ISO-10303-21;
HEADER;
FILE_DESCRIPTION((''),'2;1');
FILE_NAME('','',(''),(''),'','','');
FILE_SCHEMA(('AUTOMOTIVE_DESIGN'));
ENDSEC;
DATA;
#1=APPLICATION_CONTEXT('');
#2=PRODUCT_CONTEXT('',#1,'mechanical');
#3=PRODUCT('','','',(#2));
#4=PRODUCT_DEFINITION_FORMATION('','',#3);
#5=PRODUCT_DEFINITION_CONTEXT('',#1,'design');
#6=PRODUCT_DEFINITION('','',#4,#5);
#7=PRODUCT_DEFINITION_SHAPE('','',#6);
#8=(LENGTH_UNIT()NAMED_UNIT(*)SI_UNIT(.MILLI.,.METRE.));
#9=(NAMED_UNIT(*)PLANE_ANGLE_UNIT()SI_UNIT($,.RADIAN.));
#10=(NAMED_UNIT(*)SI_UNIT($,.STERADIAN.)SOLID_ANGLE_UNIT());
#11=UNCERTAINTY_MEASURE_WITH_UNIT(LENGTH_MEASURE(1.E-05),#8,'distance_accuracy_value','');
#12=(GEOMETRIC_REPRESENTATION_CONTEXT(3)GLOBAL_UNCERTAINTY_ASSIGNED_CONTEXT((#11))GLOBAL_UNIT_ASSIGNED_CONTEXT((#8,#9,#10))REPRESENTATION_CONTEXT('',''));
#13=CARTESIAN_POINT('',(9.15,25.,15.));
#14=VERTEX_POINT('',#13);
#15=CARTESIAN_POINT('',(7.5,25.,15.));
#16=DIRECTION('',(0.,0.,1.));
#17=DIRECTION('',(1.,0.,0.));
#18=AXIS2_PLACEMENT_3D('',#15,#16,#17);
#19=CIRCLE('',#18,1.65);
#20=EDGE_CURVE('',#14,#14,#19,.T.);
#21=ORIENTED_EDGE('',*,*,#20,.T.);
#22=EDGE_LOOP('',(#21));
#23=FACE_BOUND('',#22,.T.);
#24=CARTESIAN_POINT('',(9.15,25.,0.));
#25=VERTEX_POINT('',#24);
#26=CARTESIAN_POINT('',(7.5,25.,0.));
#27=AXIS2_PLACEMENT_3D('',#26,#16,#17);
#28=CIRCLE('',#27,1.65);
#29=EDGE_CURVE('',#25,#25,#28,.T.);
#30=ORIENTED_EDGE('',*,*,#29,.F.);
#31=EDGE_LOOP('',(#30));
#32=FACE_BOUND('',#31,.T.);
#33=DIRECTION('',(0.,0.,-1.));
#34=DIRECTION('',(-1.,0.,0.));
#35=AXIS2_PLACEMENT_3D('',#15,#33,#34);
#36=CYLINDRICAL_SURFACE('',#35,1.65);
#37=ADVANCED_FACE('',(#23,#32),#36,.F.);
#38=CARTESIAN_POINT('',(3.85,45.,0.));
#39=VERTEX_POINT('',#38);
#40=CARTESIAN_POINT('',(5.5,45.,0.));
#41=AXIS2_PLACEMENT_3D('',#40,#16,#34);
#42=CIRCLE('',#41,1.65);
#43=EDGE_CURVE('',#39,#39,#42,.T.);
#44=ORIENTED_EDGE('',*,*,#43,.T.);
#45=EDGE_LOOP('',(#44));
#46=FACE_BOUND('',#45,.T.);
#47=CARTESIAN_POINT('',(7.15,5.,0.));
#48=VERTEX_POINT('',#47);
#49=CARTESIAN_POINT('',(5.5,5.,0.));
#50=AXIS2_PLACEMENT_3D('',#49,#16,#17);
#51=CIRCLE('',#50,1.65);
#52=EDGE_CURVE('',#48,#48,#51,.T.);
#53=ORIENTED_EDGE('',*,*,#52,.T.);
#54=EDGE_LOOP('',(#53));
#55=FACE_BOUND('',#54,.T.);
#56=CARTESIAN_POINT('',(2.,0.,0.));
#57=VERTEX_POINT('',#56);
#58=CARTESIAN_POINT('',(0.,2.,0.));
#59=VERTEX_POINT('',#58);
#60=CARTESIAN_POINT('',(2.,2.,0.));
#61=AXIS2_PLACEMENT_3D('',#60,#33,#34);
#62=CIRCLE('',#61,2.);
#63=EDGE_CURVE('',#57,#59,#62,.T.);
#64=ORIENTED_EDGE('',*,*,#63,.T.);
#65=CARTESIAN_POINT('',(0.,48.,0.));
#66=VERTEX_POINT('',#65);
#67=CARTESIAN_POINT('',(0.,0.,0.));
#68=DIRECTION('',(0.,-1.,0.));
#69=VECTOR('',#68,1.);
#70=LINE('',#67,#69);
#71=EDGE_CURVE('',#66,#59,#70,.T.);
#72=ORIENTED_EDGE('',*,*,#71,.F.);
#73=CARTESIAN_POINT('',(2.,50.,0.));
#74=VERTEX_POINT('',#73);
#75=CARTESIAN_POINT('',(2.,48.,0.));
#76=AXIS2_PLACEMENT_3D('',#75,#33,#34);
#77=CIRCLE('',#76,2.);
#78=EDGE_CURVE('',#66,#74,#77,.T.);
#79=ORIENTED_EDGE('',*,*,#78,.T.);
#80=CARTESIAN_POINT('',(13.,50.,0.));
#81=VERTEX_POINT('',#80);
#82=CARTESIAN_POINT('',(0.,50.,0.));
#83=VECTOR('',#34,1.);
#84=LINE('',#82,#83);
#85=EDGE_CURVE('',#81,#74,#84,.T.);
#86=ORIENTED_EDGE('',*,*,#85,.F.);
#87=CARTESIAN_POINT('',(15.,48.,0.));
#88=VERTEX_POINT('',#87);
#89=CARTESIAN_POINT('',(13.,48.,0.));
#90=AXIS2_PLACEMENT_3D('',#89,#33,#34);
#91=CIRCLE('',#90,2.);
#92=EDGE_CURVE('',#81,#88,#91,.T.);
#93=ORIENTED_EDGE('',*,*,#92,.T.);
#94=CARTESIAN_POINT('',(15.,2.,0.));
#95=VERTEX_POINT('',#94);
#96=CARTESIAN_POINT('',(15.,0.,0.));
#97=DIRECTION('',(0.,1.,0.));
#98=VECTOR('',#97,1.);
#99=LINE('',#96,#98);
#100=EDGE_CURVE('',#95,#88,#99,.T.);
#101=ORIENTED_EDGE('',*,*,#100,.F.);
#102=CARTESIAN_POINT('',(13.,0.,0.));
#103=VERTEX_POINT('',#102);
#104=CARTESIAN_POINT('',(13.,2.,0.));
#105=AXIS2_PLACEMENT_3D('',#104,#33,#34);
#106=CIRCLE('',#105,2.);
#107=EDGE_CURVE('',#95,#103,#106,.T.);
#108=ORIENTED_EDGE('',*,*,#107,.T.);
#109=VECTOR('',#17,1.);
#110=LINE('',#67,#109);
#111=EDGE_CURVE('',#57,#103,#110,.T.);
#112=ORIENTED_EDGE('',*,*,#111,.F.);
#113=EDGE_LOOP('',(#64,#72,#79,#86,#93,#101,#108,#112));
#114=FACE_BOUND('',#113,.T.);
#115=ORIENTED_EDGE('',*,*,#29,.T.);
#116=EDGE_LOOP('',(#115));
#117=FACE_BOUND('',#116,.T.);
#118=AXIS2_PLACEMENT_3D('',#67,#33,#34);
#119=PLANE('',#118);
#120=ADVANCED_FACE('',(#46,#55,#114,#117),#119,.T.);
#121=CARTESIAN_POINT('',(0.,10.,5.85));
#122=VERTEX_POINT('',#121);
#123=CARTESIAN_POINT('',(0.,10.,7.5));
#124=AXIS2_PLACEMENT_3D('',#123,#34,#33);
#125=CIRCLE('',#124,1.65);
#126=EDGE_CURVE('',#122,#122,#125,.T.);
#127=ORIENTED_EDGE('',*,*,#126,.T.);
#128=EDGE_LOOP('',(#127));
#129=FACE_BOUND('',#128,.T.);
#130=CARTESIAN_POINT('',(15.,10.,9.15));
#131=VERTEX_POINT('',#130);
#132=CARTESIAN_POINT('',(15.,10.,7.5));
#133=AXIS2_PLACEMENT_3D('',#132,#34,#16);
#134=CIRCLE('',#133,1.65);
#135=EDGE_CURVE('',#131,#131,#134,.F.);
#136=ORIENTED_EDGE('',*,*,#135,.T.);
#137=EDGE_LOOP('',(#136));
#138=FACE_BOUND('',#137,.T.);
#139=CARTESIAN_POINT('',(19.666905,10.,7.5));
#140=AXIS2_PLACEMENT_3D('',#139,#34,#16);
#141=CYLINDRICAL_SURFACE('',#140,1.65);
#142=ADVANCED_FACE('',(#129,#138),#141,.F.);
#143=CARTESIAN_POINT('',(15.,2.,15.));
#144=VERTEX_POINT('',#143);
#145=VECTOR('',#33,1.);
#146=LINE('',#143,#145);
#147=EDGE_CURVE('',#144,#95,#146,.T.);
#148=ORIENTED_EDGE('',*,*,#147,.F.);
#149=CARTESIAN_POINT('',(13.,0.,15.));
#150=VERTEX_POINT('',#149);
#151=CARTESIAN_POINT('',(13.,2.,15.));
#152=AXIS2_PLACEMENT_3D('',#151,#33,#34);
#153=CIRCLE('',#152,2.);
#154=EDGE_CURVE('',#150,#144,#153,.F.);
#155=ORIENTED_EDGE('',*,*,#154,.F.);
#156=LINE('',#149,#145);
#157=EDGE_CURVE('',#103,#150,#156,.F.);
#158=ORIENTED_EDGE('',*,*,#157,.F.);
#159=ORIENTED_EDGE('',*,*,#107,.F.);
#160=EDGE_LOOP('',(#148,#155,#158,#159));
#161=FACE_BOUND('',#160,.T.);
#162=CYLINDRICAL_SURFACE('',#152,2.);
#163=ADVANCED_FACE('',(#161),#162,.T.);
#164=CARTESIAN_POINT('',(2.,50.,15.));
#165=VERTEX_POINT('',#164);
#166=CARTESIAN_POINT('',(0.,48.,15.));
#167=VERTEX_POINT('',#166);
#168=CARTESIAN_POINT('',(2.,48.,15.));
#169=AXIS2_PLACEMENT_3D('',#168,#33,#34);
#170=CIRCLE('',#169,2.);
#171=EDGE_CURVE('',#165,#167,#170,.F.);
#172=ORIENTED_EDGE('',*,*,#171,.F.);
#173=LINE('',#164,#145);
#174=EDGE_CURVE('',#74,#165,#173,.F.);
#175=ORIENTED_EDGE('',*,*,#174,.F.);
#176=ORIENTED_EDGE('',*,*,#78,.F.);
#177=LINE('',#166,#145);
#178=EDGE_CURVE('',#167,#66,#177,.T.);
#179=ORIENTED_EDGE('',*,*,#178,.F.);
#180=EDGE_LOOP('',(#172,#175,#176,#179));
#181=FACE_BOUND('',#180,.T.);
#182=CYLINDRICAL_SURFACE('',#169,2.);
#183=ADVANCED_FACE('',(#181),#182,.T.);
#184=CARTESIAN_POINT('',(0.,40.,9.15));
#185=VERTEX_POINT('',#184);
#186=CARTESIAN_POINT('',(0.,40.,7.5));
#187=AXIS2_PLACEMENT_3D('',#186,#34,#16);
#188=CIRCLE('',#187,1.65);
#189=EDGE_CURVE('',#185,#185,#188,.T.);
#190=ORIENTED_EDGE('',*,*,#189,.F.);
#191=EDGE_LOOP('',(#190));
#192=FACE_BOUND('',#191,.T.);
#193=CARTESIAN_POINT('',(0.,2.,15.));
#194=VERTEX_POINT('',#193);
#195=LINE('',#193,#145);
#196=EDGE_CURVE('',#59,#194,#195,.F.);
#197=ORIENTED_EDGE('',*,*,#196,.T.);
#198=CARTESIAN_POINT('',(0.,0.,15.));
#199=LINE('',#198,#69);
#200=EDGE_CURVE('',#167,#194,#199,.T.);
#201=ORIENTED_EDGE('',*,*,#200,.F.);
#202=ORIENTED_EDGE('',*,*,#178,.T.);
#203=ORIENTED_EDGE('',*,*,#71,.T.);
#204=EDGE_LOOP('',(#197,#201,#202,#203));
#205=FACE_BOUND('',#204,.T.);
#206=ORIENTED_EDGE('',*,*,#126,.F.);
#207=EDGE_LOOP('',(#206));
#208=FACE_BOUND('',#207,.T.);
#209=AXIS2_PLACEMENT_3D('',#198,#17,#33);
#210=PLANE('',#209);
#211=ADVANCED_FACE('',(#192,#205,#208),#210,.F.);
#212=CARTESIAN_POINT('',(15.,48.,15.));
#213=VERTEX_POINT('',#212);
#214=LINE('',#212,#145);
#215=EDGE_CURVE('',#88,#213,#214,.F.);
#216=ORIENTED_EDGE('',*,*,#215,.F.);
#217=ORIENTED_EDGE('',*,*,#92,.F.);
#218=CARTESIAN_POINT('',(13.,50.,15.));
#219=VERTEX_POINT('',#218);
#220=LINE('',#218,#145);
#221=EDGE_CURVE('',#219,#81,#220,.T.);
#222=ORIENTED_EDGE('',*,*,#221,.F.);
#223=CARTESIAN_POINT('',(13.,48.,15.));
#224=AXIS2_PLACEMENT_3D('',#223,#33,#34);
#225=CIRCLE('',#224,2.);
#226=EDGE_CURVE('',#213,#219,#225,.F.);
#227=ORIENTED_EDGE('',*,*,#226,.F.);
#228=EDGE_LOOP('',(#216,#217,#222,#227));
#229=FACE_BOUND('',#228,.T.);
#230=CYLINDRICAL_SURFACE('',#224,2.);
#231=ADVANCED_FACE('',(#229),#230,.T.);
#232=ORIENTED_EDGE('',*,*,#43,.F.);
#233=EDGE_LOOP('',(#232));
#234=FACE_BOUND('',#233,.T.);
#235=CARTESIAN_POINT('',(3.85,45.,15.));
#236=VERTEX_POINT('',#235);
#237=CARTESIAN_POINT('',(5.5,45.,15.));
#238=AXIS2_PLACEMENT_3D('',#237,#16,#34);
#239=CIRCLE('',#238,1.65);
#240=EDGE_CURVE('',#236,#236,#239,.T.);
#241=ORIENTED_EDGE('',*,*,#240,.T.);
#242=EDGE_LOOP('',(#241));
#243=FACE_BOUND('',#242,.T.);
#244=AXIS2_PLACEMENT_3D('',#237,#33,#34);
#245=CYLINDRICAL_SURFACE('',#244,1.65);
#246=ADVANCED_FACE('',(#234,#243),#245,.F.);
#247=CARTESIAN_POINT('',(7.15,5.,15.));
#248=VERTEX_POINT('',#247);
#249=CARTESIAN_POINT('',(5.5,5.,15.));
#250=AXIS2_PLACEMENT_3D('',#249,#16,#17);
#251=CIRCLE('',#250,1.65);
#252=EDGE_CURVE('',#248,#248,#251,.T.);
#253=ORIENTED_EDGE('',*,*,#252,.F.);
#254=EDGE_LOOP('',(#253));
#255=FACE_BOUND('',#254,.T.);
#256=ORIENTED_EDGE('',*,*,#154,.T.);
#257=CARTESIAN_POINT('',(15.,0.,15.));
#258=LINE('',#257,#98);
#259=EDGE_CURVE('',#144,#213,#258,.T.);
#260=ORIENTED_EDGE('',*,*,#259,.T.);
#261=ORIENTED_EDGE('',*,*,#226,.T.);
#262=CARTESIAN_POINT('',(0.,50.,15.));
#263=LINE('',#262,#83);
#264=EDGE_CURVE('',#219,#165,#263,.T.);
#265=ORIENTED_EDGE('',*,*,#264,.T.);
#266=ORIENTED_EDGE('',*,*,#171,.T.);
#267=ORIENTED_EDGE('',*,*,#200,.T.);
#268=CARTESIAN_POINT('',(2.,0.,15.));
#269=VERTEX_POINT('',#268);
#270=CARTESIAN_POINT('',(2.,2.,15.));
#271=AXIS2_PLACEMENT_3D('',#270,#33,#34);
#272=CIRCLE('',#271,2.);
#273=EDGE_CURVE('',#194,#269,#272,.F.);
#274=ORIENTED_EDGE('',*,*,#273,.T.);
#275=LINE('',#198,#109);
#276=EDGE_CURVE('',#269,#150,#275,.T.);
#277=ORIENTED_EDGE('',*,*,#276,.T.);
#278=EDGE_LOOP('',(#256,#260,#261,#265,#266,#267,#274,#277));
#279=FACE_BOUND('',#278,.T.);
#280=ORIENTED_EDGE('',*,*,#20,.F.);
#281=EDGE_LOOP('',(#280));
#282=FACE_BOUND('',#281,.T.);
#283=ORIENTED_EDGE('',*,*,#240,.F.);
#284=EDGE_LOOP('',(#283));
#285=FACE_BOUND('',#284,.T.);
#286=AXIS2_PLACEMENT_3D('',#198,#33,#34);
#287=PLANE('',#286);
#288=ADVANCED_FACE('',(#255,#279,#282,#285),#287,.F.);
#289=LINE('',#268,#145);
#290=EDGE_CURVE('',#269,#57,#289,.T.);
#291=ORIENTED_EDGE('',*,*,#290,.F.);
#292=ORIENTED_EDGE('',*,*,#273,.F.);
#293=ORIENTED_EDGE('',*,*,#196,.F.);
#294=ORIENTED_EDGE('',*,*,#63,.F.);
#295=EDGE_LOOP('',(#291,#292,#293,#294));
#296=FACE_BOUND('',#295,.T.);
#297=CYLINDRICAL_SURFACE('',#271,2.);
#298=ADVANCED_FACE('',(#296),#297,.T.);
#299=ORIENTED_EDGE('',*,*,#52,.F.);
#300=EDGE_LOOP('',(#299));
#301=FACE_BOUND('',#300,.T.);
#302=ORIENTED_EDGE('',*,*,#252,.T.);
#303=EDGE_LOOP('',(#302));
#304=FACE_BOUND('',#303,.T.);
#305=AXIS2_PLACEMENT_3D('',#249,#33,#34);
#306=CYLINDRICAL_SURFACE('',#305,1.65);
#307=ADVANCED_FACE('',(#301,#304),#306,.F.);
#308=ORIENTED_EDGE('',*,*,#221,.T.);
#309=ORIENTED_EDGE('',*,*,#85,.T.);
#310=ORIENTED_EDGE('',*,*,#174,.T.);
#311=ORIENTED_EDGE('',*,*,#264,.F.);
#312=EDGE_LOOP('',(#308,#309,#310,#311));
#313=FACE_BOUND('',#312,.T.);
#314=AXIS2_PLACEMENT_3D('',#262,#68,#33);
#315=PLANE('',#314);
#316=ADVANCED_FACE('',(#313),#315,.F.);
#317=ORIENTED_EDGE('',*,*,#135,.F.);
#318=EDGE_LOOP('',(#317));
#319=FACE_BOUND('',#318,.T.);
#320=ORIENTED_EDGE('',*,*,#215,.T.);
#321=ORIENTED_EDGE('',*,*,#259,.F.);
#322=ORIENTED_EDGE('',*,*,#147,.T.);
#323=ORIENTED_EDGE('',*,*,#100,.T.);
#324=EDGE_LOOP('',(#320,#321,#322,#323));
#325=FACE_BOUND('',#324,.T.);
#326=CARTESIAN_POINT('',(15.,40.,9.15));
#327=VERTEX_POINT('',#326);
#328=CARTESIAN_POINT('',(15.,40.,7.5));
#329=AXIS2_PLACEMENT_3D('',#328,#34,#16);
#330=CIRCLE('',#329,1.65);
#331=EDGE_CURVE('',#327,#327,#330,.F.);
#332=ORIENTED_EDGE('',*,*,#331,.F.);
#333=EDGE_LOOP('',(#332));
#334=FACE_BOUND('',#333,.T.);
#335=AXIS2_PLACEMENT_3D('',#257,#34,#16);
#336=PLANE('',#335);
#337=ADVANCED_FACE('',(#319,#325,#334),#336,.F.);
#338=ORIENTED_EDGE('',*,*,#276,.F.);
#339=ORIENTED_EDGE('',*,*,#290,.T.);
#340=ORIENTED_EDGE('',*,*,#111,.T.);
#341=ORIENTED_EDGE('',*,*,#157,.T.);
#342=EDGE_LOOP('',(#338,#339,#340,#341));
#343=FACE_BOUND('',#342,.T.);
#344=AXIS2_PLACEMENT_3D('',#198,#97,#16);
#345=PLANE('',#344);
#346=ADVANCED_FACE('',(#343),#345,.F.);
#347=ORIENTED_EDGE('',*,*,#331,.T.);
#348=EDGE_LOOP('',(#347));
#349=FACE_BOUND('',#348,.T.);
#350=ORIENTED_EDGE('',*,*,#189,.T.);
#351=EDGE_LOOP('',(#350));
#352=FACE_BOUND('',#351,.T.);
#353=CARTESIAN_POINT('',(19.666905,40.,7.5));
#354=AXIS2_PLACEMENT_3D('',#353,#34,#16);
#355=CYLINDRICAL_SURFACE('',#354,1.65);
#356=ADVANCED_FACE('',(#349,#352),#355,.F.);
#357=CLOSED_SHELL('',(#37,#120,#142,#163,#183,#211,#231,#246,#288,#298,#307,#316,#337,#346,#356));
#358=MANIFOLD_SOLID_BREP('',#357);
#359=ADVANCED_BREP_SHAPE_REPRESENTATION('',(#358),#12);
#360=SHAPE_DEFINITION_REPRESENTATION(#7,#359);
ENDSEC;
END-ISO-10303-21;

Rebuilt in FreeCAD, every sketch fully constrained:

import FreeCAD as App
import Part
import Sketcher
Q = App.Units.Quantity


def edges_at(feature, points):
    """Names of the edges that pass closest to the given points."""
    edges = feature.Shape.Edges
    near = lambda p: min(range(len(edges)), key=lambda i: edges[i].distToShape(Part.Vertex(*p))[0])
    return sorted({f"Edge{near(p) + 1}" for p in points})


def add_polygon(sketch, points):
    """Adds a closed chain of lines whose ends are joined by coincident constraints."""
    first, n = sketch.GeometryCount, len(points)
    for a, b in zip(points, points[1:] + points[:1]):
        sketch.addGeometry(Part.LineSegment(App.Vector(*a, 0), App.Vector(*b, 0)), False)
    for i in range(n):
        sketch.addConstraint(Sketcher.Constraint("Coincident", first + i, 2, first + (i + 1) % n, 1))

doc = App.newDocument("Part")
body = doc.addObject("PartDesign::Body", "Body")

# Sketch on XY plane
sketch1 = doc.addObject("Sketcher::SketchObject", "Sketch")
body.addObject(sketch1)
sketch1.AttachmentSupport = (doc.XY_Plane, [""])
sketch1.MapMode = "FlatFace"
add_polygon(sketch1, [(0, 50), (0, 0), (15, 0), (15, 50)])  # lines 0-3
sketch1.addGeometry(Part.Circle(App.Vector(5.5, 5, 0), App.Vector(0, 0, 1), 1.65), False)  # 4
sketch1.addGeometry(Part.Circle(App.Vector(5.5, 45, 0), App.Vector(0, 0, 1), 1.65), False)  # 5
sketch1.addGeometry(Part.Circle(App.Vector(7.5, 25, 0), App.Vector(0, 0, 1), 1.65), False)  # 6
sketch1.addConstraint([
    Sketcher.Constraint("Vertical", 0),
    Sketcher.Constraint("Horizontal", 1),
    Sketcher.Constraint("Vertical", 2),
    Sketcher.Constraint("Horizontal", 3),
    Sketcher.Constraint("Coincident", 0, 2, -1, 1),
    Sketcher.Constraint("Equal", 4, 5),
    Sketcher.Constraint("Equal", 5, 6),
    Sketcher.Constraint("Vertical", 4, 3, 5, 3),
    Sketcher.Constraint("Diameter", 4, Q("3.3 mm")),
    Sketcher.Constraint("DistanceX", 1, 1, 1, 2, Q("15 mm")),
    Sketcher.Constraint("DistanceY", 0, 2, 0, 1, Q("50 mm")),
    Sketcher.Constraint("DistanceY", -1, 1, 4, 3, Q("5 mm")),
    Sketcher.Constraint("DistanceY", -1, 1, 5, 3, Q("45 mm")),
    Sketcher.Constraint("DistanceY", -1, 1, 6, 3, Q("25 mm")),
    Sketcher.Constraint("DistanceX", 4, 3, 6, 3, Q("2 mm")),
    Sketcher.Constraint("DistanceX", -1, 1, 4, 3, Q("5.5 mm")),
])
pad1 = doc.addObject("PartDesign::Pad", "Pad")
body.addObject(pad1)
pad1.Profile = sketch1
pad1.Length = 15

# Sketch on YZ plane
sketch2 = doc.addObject("Sketcher::SketchObject", "Sketch001")
body.addObject(sketch2)
sketch2.AttachmentSupport = (doc.YZ_Plane, [""])
sketch2.MapMode = "FlatFace"
sketch2.addGeometry([
    Part.Circle(App.Vector(40, 7.5, 0), App.Vector(0, 0, 1), 1.65),
    Part.Circle(App.Vector(10, 7.5, 0), App.Vector(0, 0, 1), 1.65),
], False)
sketch2.addConstraint([
    Sketcher.Constraint("Equal", 0, 1),
    Sketcher.Constraint("Horizontal", 0, 3, 1, 3),
    Sketcher.Constraint("Diameter", 0, Q("3.3 mm")),
    Sketcher.Constraint("DistanceX", -1, 1, 0, 3, Q("40 mm")),
    Sketcher.Constraint("DistanceX", -1, 1, 1, 3, Q("10 mm")),
    Sketcher.Constraint("DistanceY", -1, 1, 0, 3, Q("7.5 mm")),
])
pocket1 = doc.addObject("PartDesign::Pocket", "Pocket")
body.addObject(pocket1)
pocket1.Profile = sketch2
pocket1.Length = 15
pocket1.Reversed = True
doc.recompute()

fillet = doc.addObject("PartDesign::Fillet", "Fillet")
body.addObject(fillet)
fillet.Base = (pocket1, edges_at(pocket1, [
    (0, 50, 7.5),
    (15, 50, 7.5),
    (15, 0, 7.5),
    (0, 0, 7.5),
]))
fillet.Radius = 2

doc.recompute()
